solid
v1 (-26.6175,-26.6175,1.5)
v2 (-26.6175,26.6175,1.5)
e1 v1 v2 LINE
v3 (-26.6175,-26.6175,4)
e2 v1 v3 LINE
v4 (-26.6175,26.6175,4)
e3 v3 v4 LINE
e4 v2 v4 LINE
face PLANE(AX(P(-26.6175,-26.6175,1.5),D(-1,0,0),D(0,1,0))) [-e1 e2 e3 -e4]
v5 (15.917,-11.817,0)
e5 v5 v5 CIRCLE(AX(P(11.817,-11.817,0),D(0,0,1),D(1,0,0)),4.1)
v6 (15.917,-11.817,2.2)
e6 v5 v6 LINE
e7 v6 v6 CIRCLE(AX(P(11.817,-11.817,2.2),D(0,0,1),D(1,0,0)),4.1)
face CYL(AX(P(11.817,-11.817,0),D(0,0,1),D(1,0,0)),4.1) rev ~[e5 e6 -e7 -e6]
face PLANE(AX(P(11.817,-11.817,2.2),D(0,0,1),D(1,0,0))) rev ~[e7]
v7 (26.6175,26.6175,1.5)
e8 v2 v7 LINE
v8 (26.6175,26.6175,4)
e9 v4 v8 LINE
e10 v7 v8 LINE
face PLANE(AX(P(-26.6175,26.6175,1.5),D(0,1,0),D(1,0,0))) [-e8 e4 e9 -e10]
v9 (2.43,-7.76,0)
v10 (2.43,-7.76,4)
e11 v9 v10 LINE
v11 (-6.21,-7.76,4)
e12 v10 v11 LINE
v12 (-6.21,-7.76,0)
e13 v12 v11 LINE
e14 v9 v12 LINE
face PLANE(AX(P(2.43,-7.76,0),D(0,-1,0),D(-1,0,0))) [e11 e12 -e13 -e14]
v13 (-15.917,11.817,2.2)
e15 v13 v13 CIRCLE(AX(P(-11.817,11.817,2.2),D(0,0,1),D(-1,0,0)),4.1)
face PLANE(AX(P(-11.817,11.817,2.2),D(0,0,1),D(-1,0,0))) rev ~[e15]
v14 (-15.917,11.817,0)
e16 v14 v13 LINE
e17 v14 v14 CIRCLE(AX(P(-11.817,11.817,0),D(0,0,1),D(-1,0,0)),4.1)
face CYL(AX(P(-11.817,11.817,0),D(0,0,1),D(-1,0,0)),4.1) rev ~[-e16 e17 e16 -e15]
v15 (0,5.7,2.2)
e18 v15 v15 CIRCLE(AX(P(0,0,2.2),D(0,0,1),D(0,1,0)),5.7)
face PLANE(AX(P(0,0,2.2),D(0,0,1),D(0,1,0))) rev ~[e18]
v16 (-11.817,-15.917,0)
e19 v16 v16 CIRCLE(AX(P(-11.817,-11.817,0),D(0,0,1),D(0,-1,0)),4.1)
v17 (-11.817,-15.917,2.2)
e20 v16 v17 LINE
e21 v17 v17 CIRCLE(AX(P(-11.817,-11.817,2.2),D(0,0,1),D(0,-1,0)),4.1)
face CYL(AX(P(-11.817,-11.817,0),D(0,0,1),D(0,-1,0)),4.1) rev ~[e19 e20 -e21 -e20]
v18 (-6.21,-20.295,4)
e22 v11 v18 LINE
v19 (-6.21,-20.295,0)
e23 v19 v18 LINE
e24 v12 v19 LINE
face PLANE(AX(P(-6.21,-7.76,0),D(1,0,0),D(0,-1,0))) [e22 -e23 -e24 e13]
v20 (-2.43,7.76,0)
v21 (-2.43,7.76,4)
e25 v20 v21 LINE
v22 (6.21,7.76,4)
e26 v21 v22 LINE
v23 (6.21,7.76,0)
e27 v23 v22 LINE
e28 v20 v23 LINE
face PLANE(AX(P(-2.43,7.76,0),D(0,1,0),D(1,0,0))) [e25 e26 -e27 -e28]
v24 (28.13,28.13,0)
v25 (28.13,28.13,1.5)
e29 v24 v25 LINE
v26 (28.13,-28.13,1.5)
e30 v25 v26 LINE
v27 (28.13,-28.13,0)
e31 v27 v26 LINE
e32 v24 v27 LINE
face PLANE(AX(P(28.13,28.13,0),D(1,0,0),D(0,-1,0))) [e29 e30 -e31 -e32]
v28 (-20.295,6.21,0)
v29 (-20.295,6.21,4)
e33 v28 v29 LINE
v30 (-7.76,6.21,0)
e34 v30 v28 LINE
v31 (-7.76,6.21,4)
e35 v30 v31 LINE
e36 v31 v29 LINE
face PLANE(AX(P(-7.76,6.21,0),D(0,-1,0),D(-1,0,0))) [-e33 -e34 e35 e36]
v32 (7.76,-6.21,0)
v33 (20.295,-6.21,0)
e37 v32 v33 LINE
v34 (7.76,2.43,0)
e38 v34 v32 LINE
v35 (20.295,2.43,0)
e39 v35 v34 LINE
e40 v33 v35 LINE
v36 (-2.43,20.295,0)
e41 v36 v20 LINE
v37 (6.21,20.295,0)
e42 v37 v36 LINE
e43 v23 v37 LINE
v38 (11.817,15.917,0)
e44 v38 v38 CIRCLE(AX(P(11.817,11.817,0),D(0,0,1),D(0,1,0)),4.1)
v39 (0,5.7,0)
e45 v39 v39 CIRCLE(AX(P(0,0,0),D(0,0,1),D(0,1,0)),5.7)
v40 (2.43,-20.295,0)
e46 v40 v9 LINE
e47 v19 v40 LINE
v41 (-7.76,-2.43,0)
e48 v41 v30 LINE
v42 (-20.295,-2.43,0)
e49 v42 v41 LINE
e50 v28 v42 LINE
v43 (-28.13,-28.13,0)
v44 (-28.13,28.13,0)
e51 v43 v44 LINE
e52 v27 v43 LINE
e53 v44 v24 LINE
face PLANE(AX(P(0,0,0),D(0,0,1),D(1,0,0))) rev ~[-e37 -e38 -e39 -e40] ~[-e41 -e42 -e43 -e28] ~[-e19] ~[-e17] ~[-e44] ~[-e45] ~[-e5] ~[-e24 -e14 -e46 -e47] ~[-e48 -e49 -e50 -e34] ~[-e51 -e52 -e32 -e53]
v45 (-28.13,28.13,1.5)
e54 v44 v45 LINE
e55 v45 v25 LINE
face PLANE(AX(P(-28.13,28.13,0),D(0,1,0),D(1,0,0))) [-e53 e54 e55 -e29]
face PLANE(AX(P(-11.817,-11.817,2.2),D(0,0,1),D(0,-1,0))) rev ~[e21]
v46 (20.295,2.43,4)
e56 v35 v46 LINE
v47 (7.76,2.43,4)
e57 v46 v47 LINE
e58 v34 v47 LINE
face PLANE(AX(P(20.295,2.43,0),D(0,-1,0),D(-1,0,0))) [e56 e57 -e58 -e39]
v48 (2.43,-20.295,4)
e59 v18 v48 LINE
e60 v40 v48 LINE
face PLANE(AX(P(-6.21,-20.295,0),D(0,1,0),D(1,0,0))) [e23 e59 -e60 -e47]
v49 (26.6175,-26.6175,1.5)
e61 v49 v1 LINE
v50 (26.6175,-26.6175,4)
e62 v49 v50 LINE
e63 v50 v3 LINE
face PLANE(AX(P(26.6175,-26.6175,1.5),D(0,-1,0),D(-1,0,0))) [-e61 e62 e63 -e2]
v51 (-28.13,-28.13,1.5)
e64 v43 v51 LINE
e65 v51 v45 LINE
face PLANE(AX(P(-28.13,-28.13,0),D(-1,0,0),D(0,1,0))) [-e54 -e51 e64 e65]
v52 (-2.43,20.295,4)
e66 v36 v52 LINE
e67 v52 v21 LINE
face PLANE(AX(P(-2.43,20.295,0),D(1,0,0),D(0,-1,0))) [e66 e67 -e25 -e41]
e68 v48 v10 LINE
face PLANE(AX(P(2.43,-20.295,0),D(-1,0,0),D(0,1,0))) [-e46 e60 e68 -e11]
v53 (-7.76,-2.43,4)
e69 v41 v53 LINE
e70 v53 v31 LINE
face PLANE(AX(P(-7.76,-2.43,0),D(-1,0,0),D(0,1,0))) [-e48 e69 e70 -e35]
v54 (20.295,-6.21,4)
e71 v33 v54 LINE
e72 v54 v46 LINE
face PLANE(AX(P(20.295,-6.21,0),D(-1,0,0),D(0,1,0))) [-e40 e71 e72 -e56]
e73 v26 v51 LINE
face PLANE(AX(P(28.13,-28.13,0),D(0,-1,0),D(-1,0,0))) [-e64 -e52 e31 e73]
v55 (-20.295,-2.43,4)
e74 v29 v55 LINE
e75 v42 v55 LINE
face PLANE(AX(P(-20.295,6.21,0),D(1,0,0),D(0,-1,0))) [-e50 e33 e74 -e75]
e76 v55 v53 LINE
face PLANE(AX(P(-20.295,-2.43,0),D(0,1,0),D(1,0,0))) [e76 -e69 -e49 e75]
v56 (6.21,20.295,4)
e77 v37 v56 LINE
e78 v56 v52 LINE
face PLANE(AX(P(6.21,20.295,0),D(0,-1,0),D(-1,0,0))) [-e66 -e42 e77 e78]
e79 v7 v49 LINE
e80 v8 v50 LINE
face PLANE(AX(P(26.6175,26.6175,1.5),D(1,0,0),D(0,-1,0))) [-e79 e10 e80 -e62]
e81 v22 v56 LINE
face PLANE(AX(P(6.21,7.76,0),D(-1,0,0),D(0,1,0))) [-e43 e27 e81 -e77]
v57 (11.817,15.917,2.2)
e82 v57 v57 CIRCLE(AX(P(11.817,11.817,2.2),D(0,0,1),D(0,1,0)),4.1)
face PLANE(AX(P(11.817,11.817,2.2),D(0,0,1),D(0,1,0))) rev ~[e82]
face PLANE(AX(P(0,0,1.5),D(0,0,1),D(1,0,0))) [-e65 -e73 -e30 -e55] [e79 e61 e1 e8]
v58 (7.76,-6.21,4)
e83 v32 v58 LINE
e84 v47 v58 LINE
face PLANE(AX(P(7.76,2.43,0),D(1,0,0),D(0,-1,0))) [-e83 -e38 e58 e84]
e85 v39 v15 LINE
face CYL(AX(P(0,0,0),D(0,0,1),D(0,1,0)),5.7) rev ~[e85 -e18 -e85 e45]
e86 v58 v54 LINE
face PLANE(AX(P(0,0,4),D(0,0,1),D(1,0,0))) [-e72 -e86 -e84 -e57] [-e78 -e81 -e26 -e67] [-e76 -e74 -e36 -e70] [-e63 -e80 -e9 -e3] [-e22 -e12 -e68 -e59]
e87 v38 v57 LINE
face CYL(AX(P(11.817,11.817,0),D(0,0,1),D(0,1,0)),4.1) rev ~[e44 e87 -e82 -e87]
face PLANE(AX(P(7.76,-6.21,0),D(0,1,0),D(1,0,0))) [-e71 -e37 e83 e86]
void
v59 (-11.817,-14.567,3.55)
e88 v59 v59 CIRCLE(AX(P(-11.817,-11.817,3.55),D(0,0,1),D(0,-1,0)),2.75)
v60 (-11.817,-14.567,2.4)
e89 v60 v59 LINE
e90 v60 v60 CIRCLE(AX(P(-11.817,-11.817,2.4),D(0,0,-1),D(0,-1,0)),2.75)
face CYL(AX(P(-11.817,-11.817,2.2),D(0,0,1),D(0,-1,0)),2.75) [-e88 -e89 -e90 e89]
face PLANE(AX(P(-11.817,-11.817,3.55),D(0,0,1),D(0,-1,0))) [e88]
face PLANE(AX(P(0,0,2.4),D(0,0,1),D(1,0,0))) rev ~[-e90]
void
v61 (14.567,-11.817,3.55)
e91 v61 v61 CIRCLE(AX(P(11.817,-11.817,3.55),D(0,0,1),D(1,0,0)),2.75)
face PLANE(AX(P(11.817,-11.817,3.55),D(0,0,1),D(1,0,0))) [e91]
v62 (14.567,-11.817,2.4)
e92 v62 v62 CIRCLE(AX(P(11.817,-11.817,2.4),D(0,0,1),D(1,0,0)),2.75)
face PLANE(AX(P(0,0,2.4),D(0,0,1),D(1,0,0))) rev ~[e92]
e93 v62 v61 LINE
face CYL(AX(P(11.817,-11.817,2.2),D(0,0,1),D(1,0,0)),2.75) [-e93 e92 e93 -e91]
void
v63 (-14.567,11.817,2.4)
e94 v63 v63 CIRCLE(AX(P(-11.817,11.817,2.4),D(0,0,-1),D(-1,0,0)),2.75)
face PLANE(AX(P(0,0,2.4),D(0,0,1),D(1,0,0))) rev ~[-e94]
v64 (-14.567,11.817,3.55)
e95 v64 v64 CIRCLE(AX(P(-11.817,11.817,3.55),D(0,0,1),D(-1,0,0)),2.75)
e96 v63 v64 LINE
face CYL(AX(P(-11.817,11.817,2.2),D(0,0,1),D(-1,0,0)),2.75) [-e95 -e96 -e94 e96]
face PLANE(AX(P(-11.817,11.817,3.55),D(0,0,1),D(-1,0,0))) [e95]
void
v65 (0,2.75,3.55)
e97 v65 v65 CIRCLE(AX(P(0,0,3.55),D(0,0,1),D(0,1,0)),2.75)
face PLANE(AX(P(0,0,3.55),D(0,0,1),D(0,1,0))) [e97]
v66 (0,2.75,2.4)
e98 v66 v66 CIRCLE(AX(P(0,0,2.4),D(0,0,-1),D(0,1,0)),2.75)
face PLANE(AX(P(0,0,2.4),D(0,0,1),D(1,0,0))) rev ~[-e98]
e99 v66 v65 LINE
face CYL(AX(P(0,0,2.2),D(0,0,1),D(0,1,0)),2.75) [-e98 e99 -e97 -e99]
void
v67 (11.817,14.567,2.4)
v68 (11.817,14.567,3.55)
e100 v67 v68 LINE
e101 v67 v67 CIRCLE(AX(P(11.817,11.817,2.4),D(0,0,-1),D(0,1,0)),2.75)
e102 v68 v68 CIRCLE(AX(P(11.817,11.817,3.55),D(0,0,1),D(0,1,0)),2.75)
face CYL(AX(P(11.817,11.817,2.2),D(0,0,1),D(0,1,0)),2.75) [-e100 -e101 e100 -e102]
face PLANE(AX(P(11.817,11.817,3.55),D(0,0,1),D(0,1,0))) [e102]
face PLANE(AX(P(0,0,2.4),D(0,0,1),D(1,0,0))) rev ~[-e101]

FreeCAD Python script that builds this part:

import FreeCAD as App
import Part
import Sketcher
from FreeCAD import Vector


def add_polygon(sketch, points):
    """Adds a closed chain of lines whose ends are joined by coincident constraints."""
    first, n = sketch.GeometryCount, len(points)
    for a, b in zip(points, points[1:] + points[:1]):
        sketch.addGeometry(Part.LineSegment(App.Vector(*a, 0), App.Vector(*b, 0)), False)
    for i in range(n):
        sketch.addConstraint(Sketcher.Constraint("Coincident", first + i, 2, first + (i + 1) % n, 1))

doc = App.newDocument("Part")
body = doc.addObject("PartDesign::Body", "Body")

sketch1 = body.newObject("Sketcher::SketchObject", "Sketch")
sketch1.AttachmentSupport = (doc.getObject("XY_Plane"), [""])
sketch1.MapMode = "FlatFace"
add_polygon(sketch1, [(28.13, 28.13), (-28.13, 28.13), (-28.13, -28.13), (28.13, -28.13)])
sketch1.addConstraint([
    Sketcher.Constraint("Horizontal", 0),
    Sketcher.Constraint("Vertical", 1),
    Sketcher.Constraint("Horizontal", 2),
    Sketcher.Constraint("Vertical", 3),
    Sketcher.Constraint("Symmetric", 0, 2, 2, 2, -1, 1),
    Sketcher.Constraint("Equal", 2, 1),
    Sketcher.Constraint("DistanceX", 0, 2, 0, 1, 56.26),
])
pad1 = body.newObject("PartDesign::Pad", "Pad")
pad1.Profile = sketch1
pad1.Length = 1.5

sketch2 = body.newObject("Sketcher::SketchObject", "Sketch001")
sketch2.AttachmentSupport = (doc.getObject("XY_Plane"), [""])
sketch2.MapMode = "FlatFace"
sketch2.AttachmentOffset = App.Placement(Vector(0, 0, 1.5), App.Rotation())
add_polygon(sketch2, [(26.6175, 26.6175), (-26.6175, 26.6175), (-26.6175, -26.6175), (26.6175, -26.6175)])
sketch2.addConstraint([
    Sketcher.Constraint("Horizontal", 0),
    Sketcher.Constraint("Vertical", 1),
    Sketcher.Constraint("Horizontal", 2),
    Sketcher.Constraint("Vertical", 3),
    Sketcher.Constraint("Symmetric", 0, 2, 2, 2, -1, 1),
    Sketcher.Constraint("Equal", 2, 1),
    Sketcher.Constraint("DistanceX", 0, 2, 0, 1, 53.235),
])
pad2 = body.newObject("PartDesign::Pad", "Pad001")
pad2.Profile = sketch2
pad2.Length = 2.5

sketch3 = body.newObject("Sketcher::SketchObject", "Sketch002")
sketch3.AttachmentSupport = (doc.getObject("XY_Plane"), [""])
sketch3.MapMode = "FlatFace"
add_polygon(sketch3, [(-2.43, 20.295), (6.21, 20.295), (6.21, 7.76), (-2.43, 7.76)])
sketch3.addConstraint([
    Sketcher.Constraint("Horizontal", 0),
    Sketcher.Constraint("Vertical", 1),
    Sketcher.Constraint("Horizontal", 2),
    Sketcher.Constraint("Vertical", 3),
    Sketcher.Constraint("DistanceX", 0, 1, 0, 2, 8.64),
    Sketcher.Constraint("DistanceY", 1, 2, 1, 1, 12.535),
    Sketcher.Constraint("DistanceX", -1, 1, 0, 2, 6.21),
    Sketcher.Constraint("DistanceY", -1, 1, 1, 2, 7.76),
])
pocket1 = body.newObject("PartDesign::Pocket", "Pocket")
pocket1.Profile = sketch3
pocket1.Length = 4
pocket1.Reversed = True
doc.recompute()

polarpattern = body.newObject("PartDesign::PolarPattern", "PolarPattern")
polarpattern.Originals = [pocket1]
polarpattern.Axis = (doc.getObject("Z_Axis"), [""])
polarpattern.Angle = 360
polarpattern.Occurrences = 4
body.Tip = polarpattern

sketch4 = body.newObject("Sketcher::SketchObject", "Sketch003")
sketch4.AttachmentSupport = (doc.getObject("XY_Plane"), [""])
sketch4.MapMode = "FlatFace"
sketch4.addGeometry(Part.Circle(Vector(11.817, 11.817, 0), Vector(0, 0, 1), 2.75), False)
sketch4.addConstraint([
    Sketcher.Constraint("Diameter", 0, 5.5),
    Sketcher.Constraint("DistanceX", -1, 1, 0, 3, 11.817),
    Sketcher.Constraint("DistanceY", -1, 1, 0, 3, 11.817),
])
doc.recompute()
hole = body.newObject("PartDesign::Hole", "Hole")
hole.Profile = sketch4
hole.ThreadType = "None"
hole.Diameter = 5.5
hole.DepthType = "Dimension"
hole.Depth = 3.55
hole.DrillPoint = "Flat"
hole.HoleCutType = "Counterbore"
hole.HoleCutDiameter = 8.2
hole.HoleCutDepth = 2.2
hole.Reversed = True
doc.recompute()

polarpattern2 = body.newObject("PartDesign::PolarPattern", "PolarPattern001")
polarpattern2.Originals = [hole]
polarpattern2.Axis = (doc.getObject("Z_Axis"), [""])
polarpattern2.Angle = 360
polarpattern2.Occurrences = 4
body.Tip = polarpattern2

sketch5 = body.newObject("Sketcher::SketchObject", "Sketch004")
sketch5.AttachmentSupport = (doc.getObject("XY_Plane"), [""])
sketch5.MapMode = "FlatFace"
sketch5.addGeometry(Part.Circle(Vector(0, 0, 0), Vector(0, 0, 1), 2.75), False)
sketch5.addConstraint([
    Sketcher.Constraint("Coincident", 0, 3, -1, 1),
    Sketcher.Constraint("Diameter", 0, 5.5),
])
doc.recompute()
hole2 = body.newObject("PartDesign::Hole", "Hole001")
hole2.Profile = sketch5
hole2.ThreadType = "None"
hole2.Diameter = 5.5
hole2.DepthType = "Dimension"
hole2.Depth = 3.55
hole2.DrillPoint = "Flat"
hole2.HoleCutType = "Counterbore"
hole2.HoleCutDiameter = 11.4
hole2.HoleCutDepth = 2.2
hole2.Reversed = True

sketch6 = body.newObject("Sketcher::SketchObject", "Sketch005")
sketch6.AttachmentSupport = (doc.getObject("XY_Plane"), [""])
sketch6.MapMode = "FlatFace"
sketch6.AttachmentOffset = App.Placement(Vector(0, 0, 2.2), App.Rotation())
sketch6.addGeometry([
    Part.Circle(Vector(-11.817, -11.817, 0), Vector(0, 0, 1), 2.75),
    Part.Circle(Vector(-11.817, 11.817, 0), Vector(0, 0, 1), 2.75),
    Part.Circle(Vector(11.817, 11.817, 0), Vector(0, 0, 1), 2.75),
    Part.Circle(Vector(11.817, -11.817, 0), Vector(0, 0, 1), 2.75),
    Part.Circle(Vector(0, 0, 0), Vector(0, 0, 1), 2.75),
], False)
sketch6.addConstraint([
    Sketcher.Constraint("Coincident", 4, 3, -1, 1),
    Sketcher.Constraint("Equal", 0, 1),
    Sketcher.Constraint("Equal", 1, 2),
    Sketcher.Constraint("Equal", 2, 3),
    Sketcher.Constraint("Equal", 3, 4),
    Sketcher.Constraint("Symmetric", 0, 3, 2, 3, -1, 1),
    Sketcher.Constraint("Symmetric", 1, 3, 3, 3, -1, 1),
    Sketcher.Constraint("Symmetric", 1, 3, 2, 3, -2),
    Sketcher.Constraint("Diameter", 0, 5.5),
    Sketcher.Constraint("DistanceX", 0, 3, -1, 1, 11.817),
    Sketcher.Constraint("DistanceY", 0, 3, -1, 1, 11.817),
])
pad3 = body.newObject("PartDesign::Pad", "Pad002")
pad3.Profile = sketch6
pad3.Length = 0.2

doc.recompute()
